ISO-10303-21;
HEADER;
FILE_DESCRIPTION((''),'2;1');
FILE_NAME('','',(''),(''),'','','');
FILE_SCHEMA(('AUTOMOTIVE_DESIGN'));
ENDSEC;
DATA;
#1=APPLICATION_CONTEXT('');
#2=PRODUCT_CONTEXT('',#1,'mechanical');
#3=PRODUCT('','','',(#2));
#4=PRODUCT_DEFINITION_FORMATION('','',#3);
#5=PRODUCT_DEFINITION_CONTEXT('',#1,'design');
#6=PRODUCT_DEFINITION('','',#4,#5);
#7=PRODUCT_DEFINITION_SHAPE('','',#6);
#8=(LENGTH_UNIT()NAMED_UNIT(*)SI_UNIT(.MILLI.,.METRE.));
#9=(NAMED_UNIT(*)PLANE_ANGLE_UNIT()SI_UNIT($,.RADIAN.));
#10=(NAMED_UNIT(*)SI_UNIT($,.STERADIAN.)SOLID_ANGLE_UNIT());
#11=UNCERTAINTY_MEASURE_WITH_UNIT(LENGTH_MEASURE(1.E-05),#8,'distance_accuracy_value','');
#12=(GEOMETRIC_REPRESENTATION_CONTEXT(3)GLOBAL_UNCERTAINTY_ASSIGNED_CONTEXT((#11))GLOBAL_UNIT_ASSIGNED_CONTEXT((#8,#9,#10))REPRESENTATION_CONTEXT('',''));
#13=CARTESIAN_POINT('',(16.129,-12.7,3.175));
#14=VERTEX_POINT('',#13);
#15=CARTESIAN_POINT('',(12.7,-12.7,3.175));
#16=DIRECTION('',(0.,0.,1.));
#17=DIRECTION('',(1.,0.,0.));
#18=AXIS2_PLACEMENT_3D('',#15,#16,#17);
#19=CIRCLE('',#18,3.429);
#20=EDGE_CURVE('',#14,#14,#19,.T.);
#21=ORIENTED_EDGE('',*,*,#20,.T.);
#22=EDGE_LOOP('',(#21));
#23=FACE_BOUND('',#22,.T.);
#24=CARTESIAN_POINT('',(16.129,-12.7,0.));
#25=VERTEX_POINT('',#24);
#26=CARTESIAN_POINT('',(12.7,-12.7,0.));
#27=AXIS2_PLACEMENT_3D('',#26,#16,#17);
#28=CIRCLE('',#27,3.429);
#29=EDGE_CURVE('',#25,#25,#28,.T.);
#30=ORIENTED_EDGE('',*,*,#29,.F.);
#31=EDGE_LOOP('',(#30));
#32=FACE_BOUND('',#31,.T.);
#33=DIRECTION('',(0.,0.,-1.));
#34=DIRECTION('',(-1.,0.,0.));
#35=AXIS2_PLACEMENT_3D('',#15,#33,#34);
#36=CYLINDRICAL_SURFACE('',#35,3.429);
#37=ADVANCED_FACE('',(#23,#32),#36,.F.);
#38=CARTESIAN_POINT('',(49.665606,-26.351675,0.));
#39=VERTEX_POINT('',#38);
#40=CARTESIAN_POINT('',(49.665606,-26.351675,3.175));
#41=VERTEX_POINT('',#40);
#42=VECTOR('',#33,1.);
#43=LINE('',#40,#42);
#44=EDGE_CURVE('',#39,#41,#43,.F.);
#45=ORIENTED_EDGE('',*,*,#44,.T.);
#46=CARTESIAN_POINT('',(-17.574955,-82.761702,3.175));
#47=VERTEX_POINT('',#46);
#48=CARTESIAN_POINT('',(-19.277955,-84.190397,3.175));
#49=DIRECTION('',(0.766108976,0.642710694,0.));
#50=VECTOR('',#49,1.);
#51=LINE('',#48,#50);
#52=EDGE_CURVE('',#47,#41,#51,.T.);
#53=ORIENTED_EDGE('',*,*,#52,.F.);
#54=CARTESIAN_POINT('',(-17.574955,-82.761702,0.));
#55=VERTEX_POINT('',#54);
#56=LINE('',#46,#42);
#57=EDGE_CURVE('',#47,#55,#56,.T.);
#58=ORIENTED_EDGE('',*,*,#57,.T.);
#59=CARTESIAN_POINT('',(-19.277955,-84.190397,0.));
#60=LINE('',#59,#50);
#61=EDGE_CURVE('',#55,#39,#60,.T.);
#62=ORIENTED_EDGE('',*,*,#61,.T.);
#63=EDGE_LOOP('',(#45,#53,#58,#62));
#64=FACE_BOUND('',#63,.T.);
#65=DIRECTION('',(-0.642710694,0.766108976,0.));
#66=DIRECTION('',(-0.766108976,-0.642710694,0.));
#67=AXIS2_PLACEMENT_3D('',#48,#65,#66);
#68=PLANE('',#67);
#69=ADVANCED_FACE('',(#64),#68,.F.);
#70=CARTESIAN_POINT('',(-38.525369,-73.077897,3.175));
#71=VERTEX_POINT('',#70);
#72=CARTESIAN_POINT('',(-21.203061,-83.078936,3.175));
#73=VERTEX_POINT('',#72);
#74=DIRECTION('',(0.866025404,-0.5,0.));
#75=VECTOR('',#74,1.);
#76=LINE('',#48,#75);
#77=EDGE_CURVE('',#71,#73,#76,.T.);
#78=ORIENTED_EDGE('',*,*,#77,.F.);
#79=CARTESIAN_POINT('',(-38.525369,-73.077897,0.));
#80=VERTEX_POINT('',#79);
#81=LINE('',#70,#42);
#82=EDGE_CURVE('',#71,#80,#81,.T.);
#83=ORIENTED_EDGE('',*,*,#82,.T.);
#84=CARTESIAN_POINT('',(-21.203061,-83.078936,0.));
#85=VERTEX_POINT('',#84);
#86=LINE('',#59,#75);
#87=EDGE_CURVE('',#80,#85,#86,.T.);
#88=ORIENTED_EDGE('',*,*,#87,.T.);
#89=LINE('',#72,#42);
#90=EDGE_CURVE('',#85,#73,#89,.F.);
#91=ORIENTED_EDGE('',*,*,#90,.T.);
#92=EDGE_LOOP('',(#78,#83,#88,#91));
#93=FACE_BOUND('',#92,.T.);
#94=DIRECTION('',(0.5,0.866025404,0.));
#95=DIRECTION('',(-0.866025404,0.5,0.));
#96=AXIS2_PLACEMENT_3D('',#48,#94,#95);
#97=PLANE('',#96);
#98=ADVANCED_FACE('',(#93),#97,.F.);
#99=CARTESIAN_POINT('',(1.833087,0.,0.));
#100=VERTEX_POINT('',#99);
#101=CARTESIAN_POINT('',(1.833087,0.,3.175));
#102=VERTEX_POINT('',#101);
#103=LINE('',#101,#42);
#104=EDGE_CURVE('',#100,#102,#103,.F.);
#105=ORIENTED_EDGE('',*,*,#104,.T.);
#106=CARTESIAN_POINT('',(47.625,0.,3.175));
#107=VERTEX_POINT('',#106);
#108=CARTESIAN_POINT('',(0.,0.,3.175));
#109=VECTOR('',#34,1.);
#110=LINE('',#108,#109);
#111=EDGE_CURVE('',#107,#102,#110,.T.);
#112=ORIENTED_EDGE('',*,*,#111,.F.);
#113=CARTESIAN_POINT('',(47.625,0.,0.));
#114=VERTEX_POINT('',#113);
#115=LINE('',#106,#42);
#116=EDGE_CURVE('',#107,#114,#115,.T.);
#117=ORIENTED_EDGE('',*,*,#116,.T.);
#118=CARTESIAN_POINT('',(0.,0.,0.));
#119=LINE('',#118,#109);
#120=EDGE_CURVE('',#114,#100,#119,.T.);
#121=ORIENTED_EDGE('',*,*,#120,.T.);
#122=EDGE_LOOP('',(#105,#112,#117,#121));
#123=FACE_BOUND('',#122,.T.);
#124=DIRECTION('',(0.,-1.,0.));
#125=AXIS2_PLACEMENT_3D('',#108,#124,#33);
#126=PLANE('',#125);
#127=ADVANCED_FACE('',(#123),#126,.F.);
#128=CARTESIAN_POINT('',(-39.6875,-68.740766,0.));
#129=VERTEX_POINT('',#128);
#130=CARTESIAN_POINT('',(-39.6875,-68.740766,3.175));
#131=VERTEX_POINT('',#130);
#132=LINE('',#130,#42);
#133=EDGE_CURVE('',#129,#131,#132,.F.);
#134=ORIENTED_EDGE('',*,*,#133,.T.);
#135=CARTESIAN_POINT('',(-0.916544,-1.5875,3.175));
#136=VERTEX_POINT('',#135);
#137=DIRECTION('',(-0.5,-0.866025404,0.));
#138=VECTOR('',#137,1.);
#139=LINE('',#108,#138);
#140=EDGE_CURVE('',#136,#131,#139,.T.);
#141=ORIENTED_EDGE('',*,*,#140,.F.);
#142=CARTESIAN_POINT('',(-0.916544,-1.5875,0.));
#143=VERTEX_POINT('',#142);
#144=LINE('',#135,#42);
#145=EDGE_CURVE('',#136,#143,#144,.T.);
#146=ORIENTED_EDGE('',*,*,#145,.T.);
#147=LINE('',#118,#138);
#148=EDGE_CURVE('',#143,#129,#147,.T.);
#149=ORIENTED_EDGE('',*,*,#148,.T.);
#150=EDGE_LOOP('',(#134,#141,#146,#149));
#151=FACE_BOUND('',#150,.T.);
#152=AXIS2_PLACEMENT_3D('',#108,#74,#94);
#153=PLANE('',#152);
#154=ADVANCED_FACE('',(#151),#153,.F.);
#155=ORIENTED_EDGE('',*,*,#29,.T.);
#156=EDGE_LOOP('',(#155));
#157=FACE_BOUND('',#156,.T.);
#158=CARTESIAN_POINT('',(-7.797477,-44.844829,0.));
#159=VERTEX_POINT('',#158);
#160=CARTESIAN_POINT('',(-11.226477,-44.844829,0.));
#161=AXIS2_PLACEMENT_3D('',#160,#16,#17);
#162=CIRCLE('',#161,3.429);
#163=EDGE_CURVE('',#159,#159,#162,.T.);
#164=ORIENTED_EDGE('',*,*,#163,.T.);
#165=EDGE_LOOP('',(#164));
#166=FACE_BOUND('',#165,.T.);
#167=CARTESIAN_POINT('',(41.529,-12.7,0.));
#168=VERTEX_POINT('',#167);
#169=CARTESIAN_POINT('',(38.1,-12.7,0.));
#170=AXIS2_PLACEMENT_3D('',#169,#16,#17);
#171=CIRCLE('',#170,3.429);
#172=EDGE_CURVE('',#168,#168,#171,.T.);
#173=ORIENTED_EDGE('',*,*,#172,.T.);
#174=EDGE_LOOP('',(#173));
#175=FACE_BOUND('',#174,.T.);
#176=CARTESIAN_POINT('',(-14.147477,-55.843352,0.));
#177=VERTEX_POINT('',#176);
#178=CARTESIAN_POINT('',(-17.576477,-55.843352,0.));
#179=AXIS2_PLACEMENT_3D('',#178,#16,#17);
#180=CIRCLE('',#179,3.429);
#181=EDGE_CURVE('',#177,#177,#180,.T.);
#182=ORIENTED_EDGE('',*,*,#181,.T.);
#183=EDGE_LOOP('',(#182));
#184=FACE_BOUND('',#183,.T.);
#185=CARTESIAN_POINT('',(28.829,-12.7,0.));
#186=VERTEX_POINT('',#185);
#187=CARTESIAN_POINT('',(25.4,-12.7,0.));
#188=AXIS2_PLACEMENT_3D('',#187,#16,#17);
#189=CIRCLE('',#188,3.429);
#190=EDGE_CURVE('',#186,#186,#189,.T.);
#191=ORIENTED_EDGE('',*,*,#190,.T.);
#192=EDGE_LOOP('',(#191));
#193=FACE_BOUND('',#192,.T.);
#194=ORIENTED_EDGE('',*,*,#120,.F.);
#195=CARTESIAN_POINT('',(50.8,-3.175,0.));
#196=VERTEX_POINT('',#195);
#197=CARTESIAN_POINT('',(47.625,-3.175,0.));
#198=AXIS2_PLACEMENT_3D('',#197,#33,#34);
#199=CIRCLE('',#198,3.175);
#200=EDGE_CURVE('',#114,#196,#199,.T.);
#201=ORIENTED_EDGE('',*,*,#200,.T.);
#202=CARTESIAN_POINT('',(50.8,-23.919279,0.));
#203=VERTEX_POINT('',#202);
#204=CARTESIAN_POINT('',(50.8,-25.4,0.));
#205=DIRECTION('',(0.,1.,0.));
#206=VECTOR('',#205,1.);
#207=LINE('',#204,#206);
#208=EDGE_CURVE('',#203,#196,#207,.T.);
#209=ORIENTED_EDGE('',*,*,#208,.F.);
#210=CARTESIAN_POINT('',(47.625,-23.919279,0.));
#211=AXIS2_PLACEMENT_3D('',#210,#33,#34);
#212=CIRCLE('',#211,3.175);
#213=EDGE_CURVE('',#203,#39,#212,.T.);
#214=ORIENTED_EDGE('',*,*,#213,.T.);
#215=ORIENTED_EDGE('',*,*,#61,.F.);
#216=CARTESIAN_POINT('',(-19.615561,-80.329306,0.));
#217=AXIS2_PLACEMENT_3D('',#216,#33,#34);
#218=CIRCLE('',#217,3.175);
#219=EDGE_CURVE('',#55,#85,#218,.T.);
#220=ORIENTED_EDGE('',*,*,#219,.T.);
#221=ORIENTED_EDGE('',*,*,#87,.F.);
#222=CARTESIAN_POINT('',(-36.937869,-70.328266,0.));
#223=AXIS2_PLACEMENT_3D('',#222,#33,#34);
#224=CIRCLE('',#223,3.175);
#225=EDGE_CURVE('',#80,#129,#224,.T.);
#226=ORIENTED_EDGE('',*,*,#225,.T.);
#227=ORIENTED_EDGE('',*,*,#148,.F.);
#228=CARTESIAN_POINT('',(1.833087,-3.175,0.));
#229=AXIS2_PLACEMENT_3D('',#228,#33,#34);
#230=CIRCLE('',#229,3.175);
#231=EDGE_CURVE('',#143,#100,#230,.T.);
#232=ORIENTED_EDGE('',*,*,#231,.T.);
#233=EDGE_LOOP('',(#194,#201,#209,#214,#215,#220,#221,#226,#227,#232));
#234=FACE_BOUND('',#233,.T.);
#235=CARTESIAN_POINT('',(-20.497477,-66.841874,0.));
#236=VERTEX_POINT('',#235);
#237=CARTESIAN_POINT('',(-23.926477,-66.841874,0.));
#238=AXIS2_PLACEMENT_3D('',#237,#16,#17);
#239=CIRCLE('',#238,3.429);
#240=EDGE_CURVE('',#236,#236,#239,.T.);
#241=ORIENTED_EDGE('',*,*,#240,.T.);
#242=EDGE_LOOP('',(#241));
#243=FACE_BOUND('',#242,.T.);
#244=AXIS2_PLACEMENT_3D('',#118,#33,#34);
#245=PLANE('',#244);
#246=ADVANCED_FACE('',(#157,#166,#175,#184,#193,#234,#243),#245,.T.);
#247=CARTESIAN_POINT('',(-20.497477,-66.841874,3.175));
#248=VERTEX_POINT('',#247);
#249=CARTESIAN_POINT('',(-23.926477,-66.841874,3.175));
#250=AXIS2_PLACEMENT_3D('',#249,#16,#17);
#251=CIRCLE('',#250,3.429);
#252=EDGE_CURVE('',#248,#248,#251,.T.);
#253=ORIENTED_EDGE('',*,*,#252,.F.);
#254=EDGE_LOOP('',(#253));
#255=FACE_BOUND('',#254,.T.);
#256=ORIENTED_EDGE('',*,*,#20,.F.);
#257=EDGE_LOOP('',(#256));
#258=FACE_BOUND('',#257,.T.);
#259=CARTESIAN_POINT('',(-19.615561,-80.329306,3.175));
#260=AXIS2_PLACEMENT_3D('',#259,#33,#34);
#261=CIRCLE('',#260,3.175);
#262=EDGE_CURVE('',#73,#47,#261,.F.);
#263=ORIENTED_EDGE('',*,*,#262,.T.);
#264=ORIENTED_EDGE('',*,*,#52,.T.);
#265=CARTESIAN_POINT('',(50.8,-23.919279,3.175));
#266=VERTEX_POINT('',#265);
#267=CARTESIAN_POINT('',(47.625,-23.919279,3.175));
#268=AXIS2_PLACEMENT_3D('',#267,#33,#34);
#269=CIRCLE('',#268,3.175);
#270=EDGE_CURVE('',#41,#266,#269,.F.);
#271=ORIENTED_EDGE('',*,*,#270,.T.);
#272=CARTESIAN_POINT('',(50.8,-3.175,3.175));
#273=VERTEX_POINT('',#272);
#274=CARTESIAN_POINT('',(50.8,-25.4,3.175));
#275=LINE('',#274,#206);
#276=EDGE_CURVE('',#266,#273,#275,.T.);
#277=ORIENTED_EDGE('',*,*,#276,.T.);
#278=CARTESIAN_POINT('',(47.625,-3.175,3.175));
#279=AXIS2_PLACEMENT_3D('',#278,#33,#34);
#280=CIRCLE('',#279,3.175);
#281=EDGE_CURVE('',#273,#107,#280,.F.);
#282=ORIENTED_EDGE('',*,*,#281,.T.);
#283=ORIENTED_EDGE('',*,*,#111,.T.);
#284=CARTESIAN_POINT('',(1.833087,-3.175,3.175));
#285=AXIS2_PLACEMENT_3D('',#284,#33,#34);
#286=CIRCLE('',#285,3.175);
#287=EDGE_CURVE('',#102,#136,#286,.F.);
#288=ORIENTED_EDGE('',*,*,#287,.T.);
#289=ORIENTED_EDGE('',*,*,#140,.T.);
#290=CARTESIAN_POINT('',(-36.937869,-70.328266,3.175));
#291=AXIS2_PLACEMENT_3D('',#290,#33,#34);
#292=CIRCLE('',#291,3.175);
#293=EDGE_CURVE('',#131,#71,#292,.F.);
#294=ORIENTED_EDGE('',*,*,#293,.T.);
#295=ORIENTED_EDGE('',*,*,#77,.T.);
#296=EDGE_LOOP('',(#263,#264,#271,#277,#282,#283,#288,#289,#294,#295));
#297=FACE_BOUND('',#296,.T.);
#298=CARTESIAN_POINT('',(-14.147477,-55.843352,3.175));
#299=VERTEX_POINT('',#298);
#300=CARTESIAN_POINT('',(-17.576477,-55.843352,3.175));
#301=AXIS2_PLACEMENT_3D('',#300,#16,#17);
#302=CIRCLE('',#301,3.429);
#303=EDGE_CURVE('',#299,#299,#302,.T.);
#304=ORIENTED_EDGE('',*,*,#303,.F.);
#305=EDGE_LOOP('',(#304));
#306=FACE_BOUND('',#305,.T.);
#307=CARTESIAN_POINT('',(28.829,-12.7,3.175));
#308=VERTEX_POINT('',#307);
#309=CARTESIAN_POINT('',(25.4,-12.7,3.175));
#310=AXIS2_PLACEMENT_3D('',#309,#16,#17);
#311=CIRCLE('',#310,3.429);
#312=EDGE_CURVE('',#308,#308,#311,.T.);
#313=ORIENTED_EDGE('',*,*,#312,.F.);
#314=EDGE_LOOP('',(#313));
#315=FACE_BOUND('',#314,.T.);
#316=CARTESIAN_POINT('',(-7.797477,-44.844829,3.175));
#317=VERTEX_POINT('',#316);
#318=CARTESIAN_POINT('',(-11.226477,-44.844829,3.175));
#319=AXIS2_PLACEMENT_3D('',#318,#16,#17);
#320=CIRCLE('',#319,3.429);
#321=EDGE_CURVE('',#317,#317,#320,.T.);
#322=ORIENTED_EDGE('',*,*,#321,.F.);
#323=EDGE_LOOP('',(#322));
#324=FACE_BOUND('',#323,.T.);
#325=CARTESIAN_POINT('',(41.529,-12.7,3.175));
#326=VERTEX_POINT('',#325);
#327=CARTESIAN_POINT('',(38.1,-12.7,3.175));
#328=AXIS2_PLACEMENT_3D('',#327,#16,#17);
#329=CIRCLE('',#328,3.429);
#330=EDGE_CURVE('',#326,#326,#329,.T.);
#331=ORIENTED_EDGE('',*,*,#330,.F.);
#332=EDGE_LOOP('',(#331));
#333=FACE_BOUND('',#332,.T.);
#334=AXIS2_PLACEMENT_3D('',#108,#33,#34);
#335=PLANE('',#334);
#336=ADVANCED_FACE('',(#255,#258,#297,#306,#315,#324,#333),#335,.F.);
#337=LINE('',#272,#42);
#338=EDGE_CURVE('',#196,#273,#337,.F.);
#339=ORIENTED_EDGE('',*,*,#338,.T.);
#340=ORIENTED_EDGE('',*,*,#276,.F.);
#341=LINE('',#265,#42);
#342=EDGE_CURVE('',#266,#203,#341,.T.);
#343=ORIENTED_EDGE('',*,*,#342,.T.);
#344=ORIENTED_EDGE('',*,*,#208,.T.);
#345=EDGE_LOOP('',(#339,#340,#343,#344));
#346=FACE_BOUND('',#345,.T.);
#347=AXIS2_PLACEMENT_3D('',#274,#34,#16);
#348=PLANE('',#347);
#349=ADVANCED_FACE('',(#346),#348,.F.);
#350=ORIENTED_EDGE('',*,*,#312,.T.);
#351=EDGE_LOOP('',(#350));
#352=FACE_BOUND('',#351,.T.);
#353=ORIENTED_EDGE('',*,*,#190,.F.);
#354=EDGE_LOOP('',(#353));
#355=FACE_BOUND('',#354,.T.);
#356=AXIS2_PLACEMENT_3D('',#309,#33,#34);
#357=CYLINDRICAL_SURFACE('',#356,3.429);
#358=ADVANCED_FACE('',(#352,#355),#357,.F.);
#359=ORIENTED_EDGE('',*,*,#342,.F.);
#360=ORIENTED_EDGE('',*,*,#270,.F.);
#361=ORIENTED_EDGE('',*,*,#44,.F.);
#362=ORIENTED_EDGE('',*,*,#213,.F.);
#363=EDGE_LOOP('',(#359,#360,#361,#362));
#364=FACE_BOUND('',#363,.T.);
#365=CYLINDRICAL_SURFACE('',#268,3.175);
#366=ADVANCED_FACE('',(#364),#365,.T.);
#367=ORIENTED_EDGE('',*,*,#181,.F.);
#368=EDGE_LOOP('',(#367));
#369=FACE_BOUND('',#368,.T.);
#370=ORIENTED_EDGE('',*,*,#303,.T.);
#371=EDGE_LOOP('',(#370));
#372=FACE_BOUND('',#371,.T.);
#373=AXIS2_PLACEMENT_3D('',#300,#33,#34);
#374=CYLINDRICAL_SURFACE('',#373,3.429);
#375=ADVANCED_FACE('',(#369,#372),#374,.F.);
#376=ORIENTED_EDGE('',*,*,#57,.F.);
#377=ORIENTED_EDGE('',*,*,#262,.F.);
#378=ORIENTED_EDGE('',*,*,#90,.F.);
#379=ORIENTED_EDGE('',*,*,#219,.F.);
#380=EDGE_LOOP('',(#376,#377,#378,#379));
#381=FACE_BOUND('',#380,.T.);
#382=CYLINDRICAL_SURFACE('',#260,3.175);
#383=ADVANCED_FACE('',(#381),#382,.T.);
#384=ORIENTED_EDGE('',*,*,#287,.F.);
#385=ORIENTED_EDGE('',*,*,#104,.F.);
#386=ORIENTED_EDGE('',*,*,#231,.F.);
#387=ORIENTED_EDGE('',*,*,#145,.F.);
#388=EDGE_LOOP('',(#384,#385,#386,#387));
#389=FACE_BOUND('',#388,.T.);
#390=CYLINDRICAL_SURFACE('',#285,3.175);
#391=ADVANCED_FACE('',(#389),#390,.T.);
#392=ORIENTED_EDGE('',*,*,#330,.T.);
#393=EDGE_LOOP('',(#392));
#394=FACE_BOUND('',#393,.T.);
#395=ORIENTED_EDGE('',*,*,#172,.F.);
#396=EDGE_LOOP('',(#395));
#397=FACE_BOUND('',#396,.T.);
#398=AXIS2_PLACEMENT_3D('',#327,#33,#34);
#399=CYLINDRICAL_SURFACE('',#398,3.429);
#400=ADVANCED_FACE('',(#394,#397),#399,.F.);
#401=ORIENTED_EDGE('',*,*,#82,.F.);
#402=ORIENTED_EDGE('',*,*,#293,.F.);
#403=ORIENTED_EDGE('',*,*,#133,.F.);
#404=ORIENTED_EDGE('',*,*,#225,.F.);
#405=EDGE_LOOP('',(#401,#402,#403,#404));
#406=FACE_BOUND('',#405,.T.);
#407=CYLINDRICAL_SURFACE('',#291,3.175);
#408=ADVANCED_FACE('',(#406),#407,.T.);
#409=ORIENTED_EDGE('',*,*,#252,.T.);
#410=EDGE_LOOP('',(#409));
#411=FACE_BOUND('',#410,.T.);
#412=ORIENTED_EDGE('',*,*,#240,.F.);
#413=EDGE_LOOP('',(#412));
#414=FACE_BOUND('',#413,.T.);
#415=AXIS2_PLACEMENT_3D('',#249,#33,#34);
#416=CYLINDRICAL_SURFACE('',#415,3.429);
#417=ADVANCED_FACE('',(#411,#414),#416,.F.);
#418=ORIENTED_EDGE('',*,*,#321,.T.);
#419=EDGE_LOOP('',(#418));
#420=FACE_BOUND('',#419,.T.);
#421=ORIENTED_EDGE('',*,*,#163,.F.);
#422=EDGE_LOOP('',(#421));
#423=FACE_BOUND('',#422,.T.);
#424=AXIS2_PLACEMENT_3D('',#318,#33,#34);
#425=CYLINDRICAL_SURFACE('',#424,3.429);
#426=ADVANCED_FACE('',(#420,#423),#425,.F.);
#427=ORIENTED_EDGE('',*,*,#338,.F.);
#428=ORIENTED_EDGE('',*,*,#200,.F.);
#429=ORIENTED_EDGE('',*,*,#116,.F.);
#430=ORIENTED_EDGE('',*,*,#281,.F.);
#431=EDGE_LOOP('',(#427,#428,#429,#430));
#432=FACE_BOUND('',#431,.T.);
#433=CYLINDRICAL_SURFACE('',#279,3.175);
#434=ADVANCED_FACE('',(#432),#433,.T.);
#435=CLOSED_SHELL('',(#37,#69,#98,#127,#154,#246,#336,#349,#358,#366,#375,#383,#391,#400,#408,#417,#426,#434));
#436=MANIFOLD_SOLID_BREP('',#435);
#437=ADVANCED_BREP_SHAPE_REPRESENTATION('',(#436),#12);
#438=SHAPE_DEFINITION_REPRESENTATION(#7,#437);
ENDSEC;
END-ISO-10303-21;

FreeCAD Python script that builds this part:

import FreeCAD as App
import Part
import Sketcher

V = App.Vector
Q = App.Units.Quantity


def edges_at(feature, points):
    """Names of the edges that pass closest to the given points."""
    edges = feature.Shape.Edges
    near = lambda p: min(range(len(edges)), key=lambda i: edges[i].distToShape(Part.Vertex(*p))[0])
    return sorted({f"Edge{near(p) + 1}" for p in points})

doc = App.newDocument("Part")
params = doc.addObject("Spreadsheet::Sheet", "Params")
for row, (alias, value) in enumerate([
    ("sketch1_diameter", "0.27 in"),
    ("sketch1_width", "2 in"),
    ("sketch1_height", "1 in"),
    ("sketch1_length", "1 in"),
    ("sketch1_length2", "3.25 in"),
    ("pad1_length", "0.125 in"),
    ("fillet_radius", "0.125 in"),
], start=1):
    params.set(f"A{row}", alias)
    params.set(f"B{row}", "=" + value)
    params.setAlias(f"B{row}", alias)

body = doc.addObject("PartDesign::Body", "Body")

# Sketch on XY plane
sketch1 = doc.addObject("Sketcher::SketchObject", "Sketch")
body.addObject(sketch1)
sketch1.AttachmentSupport = (doc.XY_Plane, [""])
sketch1.MapMode = "FlatFace"
sketch1.addGeometry([
    Part.LineSegment(V(50.8, 0, 0), V(0, 0, 0)),  # 0
    Part.LineSegment(V(0, 0, 0), V(-41.3, -71.5, 0)),  # 1
    Part.LineSegment(V(-41.3, -71.5, 0), V(-19.3, -84.2, 0)),  # 2
    Part.LineSegment(V(-19.3, -84.2, 0), V(50.8, -25.4, 0)),  # 3
    Part.LineSegment(V(50.8, -25.4, 0), V(50.8, 0, 0)),  # 4
    Part.Circle(V(-23.9, -66.8, 0), V(0, 0, 1), 3.4),  # 5
    Part.Circle(V(-17.6, -55.8, 0), V(0, 0, 1), 3.4),  # 6
    Part.Circle(V(-11.2, -44.8, 0), V(0, 0, 1), 3.4),  # 7
    Part.Circle(V(38.1, -12.7, 0), V(0, 0, 1), 3.4),  # 8
    Part.Circle(V(25.4, -12.7, 0), V(0, 0, 1), 3.4),  # 9
    Part.Circle(V(12.7, -12.7, 0), V(0, 0, 1), 3.4),  # 10
], False)
sketch1.addConstraint([
    Sketcher.Constraint("Coincident", 0, 2, 1, 1),
    Sketcher.Constraint("Coincident", 1, 2, 2, 1),
    Sketcher.Constraint("Coincident", 2, 2, 3, 1),
    Sketcher.Constraint("Coincident", 3, 2, 4, 1),
    Sketcher.Constraint("Coincident", 4, 2, 0, 1),
    Sketcher.Constraint("Horizontal", 0),
    Sketcher.Constraint("Vertical", 4),
    Sketcher.Constraint("Coincident", 0, 2, -1, 1),
    Sketcher.Constraint("Equal", 5, 6),
    Sketcher.Constraint("Equal", 6, 7),
    Sketcher.Constraint("Equal", 7, 8),
    Sketcher.Constraint("Equal", 8, 9),
    Sketcher.Constraint("Equal", 9, 10),
    Sketcher.Constraint("Perpendicular", 1, 2),
    Sketcher.Constraint("Horizontal", 8, 3, 9, 3),
    Sketcher.Constraint("Horizontal", 9, 3, 10, 3),
    Sketcher.Constraint("Diameter", 5, Q("0.27 in")),
    Sketcher.Constraint("DistanceX", 0, 2, 0, 1, Q("2 in")),
    Sketcher.Constraint("DistanceY", 4, 1, 4, 2, Q("1 in")),
    Sketcher.Constraint("Distance", 2, Q("1 in")),
    Sketcher.Constraint("DistanceX", -1, 1, 9, 3, Q("1 in")),
    Sketcher.Constraint("Angle", 1, Q("-120 deg")),
    Sketcher.Constraint("DistanceX", 10, 3, 8, 3, Q("1 in")),
    Sketcher.Constraint("DistanceX", -1, 1, 8, 3, Q("1.5 in")),
    Sketcher.Constraint("DistanceY", 8, 3, -1, 1, Q("0.5 in")),
    Sketcher.Constraint("DistanceX", 5, 3, 7, 3, Q("0.5 in")),
    Sketcher.Constraint("Distance", 1, Q("3.25 in")),
    Sketcher.Constraint("DistanceX", 5, 3, 6, 3, Q("0.25 in")),
    Sketcher.Constraint("DistanceY", 6, 3, -1, 1, Q("55.843352 mm")),
    Sketcher.Constraint("DistanceY", 7, 3, -1, 1, Q("44.844829 mm")),
    Sketcher.Constraint("DistanceX", 5, 3, -1, 1, Q("23.926477 mm")),
    Sketcher.Constraint("DistanceY", 5, 3, -1, 1, Q("66.841874 mm")),
])
sketch1.setExpression("Constraints[16]", "Params.sketch1_diameter")
sketch1.setExpression("Constraints[17]", "Params.sketch1_width")
sketch1.setExpression("Constraints[18]", "Params.sketch1_height")
sketch1.setExpression("Constraints[19]", "Params.sketch1_length")
sketch1.setExpression("Constraints[26]", "Params.sketch1_length2")
pad1 = doc.addObject("PartDesign::Pad", "Pad")
body.addObject(pad1)
pad1.Profile = sketch1
pad1.setExpression("Length", "Params.pad1_length")
doc.recompute()

fillet = doc.addObject("PartDesign::Fillet", "Fillet")
body.addObject(fillet)
fillet.Base = (pad1, edges_at(pad1, [
    (0, 0, 1.587),
    (50.8, 0, 1.587),
    (50.8, -25.4, 1.587),
    (-19.278, -84.19, 1.587),
    (-41.275, -71.49, 1.587),
]))
fillet.setExpression("Radius", "Params.fillet_radius")

doc.recompute()
